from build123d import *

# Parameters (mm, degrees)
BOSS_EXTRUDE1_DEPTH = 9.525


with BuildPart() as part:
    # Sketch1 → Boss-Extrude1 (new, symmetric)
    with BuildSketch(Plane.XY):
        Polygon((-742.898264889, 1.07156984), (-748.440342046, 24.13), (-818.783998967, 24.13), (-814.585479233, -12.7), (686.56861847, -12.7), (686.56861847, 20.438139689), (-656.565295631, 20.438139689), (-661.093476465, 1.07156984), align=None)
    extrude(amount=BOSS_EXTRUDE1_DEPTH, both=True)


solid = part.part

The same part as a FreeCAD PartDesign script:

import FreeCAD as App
import Part
import Sketcher
Q = App.Units.Quantity

doc = App.newDocument("Part")
body = doc.addObject("PartDesign::Body", "Body")

# Sketch on XY plane
sketch1 = body.newObject("Sketcher::SketchObject", "Sketch")
sketch1.AttachmentSupport = (doc.getObject("XY_Plane"), [""])
sketch1.MapMode = "FlatFace"
sketch1.addGeometry([
    Part.LineSegment(App.Vector(-743, 1, 0), App.Vector(-748, 24, 0)),  # 0
    Part.LineSegment(App.Vector(-748, 24, 0), App.Vector(-819, 24, 0)),  # 1
    Part.LineSegment(App.Vector(-819, 24, 0), App.Vector(-815, -13, 0)),  # 2
    Part.LineSegment(App.Vector(-815, -13, 0), App.Vector(687, -13, 0)),  # 3
    Part.LineSegment(App.Vector(687, -13, 0), App.Vector(687, 20, 0)),  # 4
    Part.LineSegment(App.Vector(687, 20, 0), App.Vector(-657, 20, 0)),  # 5
    Part.LineSegment(App.Vector(-657, 20, 0), App.Vector(-661, 1, 0)),  # 6
    Part.LineSegment(App.Vector(-661, 1, 0), App.Vector(-743, 1, 0)),  # 7
], False)
sketch1.addConstraint([
    Sketcher.Constraint("Coincident", 0, 2, 1, 1),
    Sketcher.Constraint("Coincident", 1, 2, 2, 1),
    Sketcher.Constraint("Coincident", 2, 2, 3, 1),
    Sketcher.Constraint("Coincident", 3, 2, 4, 1),
    Sketcher.Constraint("Coincident", 4, 2, 5, 1),
    Sketcher.Constraint("Coincident", 5, 2, 6, 1),
    Sketcher.Constraint("Coincident", 6, 2, 7, 1),
    Sketcher.Constraint("Coincident", 7, 2, 0, 1),
    Sketcher.Constraint("Horizontal", 1),
    Sketcher.Constraint("Horizontal", 3),
    Sketcher.Constraint("Vertical", 4),
    Sketcher.Constraint("Horizontal", 5),
    Sketcher.Constraint("Horizontal", 7),
    Sketcher.Constraint("DistanceY", 2, 2, -1, 1, Q("0.5 in")),
    Sketcher.Constraint("DistanceY", -1, 1, 0, 2, Q("0.95 in")),
    Sketcher.Constraint("DistanceX", 7, 2, 7, 1, 81.804788),
    Sketcher.Constraint("DistanceY", 4, 1, 4, 2, 33.13814),
    Sketcher.Constraint("DistanceX", 1, 2, -1, 1, 818.783999),
    Sketcher.Constraint("DistanceX", 1, 2, 1, 1, 70.343657),
    Sketcher.Constraint("DistanceX", 3, 1, 3, 2, 1501.154098),
    Sketcher.Constraint("DistanceX", 5, 2, 5, 1, 1343.133914),
    Sketcher.Constraint("DistanceX", 2, 2, -1, 1, 814.585479),
    Sketcher.Constraint("DistanceY", -1, 1, 6, 2, 1.07157),
    Sketcher.Constraint("DistanceX", 6, 2, 5, 2, 4.528181),
])
pad1 = body.newObject("PartDesign::Pad", "Pad")
pad1.Profile = sketch1
pad1.Length = Q("0.75 in")
pad1.Midplane = True

doc.recompute()
